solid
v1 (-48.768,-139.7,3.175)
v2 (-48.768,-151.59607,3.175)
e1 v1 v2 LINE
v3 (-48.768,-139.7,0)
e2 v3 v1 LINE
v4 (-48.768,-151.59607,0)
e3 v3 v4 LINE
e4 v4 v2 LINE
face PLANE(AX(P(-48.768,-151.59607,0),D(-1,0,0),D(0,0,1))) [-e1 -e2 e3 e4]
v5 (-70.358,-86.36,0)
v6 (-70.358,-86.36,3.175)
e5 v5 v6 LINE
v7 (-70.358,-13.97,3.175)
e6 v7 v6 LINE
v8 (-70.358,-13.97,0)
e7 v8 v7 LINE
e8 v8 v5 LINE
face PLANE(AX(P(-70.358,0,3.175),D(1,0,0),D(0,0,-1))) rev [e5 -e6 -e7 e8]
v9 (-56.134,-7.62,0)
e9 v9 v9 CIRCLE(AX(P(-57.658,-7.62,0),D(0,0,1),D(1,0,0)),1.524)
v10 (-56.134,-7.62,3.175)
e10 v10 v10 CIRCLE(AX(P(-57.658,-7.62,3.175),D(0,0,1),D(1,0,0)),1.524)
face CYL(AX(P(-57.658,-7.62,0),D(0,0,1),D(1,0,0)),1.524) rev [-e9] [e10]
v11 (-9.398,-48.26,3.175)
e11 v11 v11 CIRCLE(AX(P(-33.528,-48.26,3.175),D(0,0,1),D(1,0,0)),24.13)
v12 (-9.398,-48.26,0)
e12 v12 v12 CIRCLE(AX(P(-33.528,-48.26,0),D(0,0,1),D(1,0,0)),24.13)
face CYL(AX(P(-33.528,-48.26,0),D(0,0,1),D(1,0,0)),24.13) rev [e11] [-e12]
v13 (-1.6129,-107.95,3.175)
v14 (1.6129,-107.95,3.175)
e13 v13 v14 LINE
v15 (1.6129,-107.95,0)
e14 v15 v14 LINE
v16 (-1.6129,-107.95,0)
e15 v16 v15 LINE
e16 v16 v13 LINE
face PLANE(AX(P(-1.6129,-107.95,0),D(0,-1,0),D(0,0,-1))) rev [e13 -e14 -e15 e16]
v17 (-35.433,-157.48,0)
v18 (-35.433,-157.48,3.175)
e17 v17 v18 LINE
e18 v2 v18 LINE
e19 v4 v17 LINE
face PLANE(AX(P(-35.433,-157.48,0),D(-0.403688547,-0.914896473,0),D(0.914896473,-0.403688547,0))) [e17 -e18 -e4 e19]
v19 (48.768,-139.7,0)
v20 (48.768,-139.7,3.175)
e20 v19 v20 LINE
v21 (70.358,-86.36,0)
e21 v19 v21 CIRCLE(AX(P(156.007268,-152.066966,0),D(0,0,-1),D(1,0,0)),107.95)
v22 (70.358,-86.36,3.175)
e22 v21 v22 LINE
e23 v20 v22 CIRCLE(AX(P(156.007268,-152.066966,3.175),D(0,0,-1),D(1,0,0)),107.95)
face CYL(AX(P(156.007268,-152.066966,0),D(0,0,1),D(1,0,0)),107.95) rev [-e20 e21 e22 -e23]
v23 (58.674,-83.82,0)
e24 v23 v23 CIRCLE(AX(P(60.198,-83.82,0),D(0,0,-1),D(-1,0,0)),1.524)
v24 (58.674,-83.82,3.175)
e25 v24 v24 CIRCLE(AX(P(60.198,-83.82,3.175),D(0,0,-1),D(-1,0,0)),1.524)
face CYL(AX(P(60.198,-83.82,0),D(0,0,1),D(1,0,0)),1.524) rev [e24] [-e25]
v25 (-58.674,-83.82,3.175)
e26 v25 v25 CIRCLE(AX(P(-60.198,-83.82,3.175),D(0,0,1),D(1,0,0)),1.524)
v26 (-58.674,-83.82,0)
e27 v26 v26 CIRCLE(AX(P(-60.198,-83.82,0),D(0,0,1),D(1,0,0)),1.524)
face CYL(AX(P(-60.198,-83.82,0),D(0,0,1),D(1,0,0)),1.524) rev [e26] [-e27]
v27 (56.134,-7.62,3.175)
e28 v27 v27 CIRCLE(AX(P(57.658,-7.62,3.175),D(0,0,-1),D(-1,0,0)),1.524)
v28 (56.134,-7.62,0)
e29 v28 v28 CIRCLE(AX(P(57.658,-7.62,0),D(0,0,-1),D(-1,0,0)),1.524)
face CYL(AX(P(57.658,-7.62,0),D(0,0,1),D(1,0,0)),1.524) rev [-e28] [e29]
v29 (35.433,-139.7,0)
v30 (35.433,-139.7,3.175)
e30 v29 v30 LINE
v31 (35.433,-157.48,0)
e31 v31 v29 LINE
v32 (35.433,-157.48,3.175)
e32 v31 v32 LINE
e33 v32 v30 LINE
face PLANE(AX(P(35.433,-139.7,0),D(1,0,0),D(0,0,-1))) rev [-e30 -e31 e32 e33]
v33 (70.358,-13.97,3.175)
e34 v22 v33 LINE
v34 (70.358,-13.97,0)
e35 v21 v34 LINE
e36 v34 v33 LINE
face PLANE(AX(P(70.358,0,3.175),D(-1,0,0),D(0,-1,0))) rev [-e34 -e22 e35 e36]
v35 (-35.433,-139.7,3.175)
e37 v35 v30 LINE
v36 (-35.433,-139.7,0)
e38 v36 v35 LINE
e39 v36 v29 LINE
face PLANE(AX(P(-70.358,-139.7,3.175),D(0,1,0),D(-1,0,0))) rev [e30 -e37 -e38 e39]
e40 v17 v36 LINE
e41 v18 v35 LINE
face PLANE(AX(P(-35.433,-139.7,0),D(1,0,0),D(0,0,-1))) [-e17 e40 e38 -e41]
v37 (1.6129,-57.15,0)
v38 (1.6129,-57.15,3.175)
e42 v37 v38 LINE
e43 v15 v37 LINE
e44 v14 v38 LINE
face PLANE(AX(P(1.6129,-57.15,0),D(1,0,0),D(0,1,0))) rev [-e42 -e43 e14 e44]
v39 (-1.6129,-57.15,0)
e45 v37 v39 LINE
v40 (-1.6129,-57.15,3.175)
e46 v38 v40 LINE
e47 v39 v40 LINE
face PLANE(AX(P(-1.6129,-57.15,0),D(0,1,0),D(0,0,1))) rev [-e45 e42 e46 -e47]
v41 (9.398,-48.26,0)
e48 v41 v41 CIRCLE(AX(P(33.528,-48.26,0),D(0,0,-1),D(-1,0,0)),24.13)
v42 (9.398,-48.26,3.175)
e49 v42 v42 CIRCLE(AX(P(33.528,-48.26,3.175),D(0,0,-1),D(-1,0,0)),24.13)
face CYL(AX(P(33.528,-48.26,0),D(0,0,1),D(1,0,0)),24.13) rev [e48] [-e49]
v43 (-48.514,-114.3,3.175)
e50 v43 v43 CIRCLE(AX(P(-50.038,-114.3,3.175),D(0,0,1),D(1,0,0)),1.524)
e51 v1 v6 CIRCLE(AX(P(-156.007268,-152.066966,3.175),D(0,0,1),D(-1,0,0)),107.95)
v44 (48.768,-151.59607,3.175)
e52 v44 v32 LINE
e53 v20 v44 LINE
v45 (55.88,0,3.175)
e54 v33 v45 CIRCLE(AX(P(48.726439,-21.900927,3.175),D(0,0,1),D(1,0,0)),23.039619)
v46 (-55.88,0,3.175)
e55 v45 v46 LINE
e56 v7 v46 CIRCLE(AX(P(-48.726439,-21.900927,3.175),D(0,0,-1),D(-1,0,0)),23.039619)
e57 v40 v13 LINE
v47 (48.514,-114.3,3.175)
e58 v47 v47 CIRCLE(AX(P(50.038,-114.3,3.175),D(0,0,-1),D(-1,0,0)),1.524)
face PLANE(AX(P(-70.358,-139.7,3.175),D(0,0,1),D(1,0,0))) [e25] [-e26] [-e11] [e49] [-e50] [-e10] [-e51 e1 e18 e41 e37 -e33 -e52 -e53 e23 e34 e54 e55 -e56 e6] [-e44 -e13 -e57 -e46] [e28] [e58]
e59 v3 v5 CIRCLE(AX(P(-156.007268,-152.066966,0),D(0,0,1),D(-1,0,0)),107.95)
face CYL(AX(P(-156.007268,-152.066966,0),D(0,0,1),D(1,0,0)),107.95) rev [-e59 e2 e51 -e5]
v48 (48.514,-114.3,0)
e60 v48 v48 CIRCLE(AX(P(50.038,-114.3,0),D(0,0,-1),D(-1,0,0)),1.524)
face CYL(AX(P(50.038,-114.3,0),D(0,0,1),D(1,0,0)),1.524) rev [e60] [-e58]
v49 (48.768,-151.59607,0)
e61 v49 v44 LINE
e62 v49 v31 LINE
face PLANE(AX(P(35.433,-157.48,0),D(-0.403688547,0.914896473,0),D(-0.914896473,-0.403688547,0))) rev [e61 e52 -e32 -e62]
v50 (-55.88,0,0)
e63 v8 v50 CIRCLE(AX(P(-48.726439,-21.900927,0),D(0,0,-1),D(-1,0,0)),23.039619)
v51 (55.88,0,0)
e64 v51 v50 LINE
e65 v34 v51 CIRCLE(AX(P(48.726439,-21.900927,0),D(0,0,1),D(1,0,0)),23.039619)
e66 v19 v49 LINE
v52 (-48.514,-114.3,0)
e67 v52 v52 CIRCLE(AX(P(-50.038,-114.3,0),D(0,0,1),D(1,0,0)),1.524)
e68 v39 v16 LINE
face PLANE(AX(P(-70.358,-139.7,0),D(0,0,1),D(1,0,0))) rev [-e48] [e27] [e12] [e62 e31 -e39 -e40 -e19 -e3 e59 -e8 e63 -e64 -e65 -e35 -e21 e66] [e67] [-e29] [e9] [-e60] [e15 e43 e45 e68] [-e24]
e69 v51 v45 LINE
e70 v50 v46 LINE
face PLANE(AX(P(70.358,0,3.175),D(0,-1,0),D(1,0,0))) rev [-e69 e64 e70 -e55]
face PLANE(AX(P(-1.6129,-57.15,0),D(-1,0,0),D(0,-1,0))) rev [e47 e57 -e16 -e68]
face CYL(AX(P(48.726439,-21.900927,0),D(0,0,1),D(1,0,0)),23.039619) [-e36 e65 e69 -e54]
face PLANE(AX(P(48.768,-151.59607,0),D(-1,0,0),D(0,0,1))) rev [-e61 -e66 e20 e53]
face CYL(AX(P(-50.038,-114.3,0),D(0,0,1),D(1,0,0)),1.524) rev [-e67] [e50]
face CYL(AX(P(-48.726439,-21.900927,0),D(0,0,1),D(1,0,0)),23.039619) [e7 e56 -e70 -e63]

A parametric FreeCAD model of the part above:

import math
import FreeCAD as App
import Part
import Sketcher
from FreeCAD import Vector
Q = App.Units.Quantity

doc = App.newDocument("Part")
params = doc.addObject("Spreadsheet::Sheet", "Params")
for row, (alias, value) in enumerate([
    ("sketch1_height", "5.5 in"),
    ("sketch1_width", "5.54 in"),
    ("pad1_length", "0.125 in"),
    ("sketch2_diameter", "1.9 in"),
    ("sketch3_height", "2 in"),
    ("sketch3_width", "0.127 in"),
    ("sketch4_radius", "4.25 in"),
    ("sketch4_height", "2.1 in"),
    ("sketch4_width", "0.85 in"),
    ("sketch4_width2", "0.57 in"),
    ("sketch4_height2", "0.55 in"),
    ("sketch5_diameter", "0.12 in"),
    ("sketch6_height", "0.7 in"),
    ("sketch6_width", "0.525 in"),
    ("pad2_length", "0.125 in"),
], start=1):
    params.set(f"A{row}", alias)
    params.set(f"B{row}", "=" + value)
    params.setAlias(f"B{row}", alias)

body = doc.addObject("PartDesign::Body", "Body")

# Sketch on XY plane
sketch1 = body.newObject("Sketcher::SketchObject", "Sketch")
sketch1.AttachmentSupport = (doc.getObject("XY_Plane"), [""])
sketch1.MapMode = "FlatFace"
sketch1.addGeometry([
    Part.LineSegment(Vector(-70, 0, 0), Vector(-70, -140, 0)),
    Part.LineSegment(Vector(-70, -140, 0), Vector(70, -140, 0)),
    Part.LineSegment(Vector(70, -140, 0), Vector(70, 0, 0)),
    Part.LineSegment(Vector(70, 0, 0), Vector(-70, 0, 0)),
], False)
sketch1.addConstraint([
    Sketcher.Constraint("Coincident", 0, 2, 1, 1),
    Sketcher.Constraint("Coincident", 1, 2, 2, 1),
    Sketcher.Constraint("Coincident", 2, 2, 3, 1),
    Sketcher.Constraint("Coincident", 3, 2, 0, 1),
    Sketcher.Constraint("Vertical", 0),
    Sketcher.Constraint("Horizontal", 1),
    Sketcher.Constraint("Vertical", 2),
    Sketcher.Constraint("Horizontal", 3),
    Sketcher.Constraint("Symmetric", 2, 2, 3, 2, -1, 1),
    Sketcher.Constraint("DistanceY", 0, 2, 0, 1, Q("5.5 in")),
    Sketcher.Constraint("DistanceX", 1, 1, 1, 2, Q("5.54 in")),
])
sketch1.setExpression("Constraints[9]", "Params.sketch1_height")
sketch1.setExpression("Constraints[10]", "Params.sketch1_width")
pad1 = body.newObject("PartDesign::Pad", "Pad")
pad1.Profile = sketch1
pad1.setExpression("Length", "Params.pad1_length")

# Sketch on XY plane
sketch2 = body.newObject("Sketcher::SketchObject", "Sketch001")
sketch2.AttachmentSupport = (doc.getObject("XY_Plane"), [""])
sketch2.MapMode = "FlatFace"
sketch2.AttachmentOffset = App.Placement(Vector(0, 0, 0.125 * 25.4), App.Rotation())
sketch2.addGeometry(Part.Circle(Vector(-34, -48, 0), Vector(0, 0, 1), 24), False)
sketch2.addConstraint([
    Sketcher.Constraint("Diameter", 0, Q("1.9 in")),
    Sketcher.Constraint("DistanceY", 0, 3, -1, 1, Q("1.9 in")),
    Sketcher.Constraint("DistanceX", 0, 3, -1, 1, Q("1.32 in")),
])
sketch2.setExpression("Constraints[0]", "Params.sketch2_diameter")
pocket1 = body.newObject("PartDesign::Pocket", "Pocket")
pocket1.Profile = sketch2
pocket1.Type = "ThroughAll"

# Sketch on XY plane
sketch3 = body.newObject("Sketcher::SketchObject", "Sketch002")
sketch3.AttachmentSupport = (doc.getObject("XY_Plane"), [""])
sketch3.MapMode = "FlatFace"
sketch3.AttachmentOffset = App.Placement(Vector(0, 0, 0.125 * 25.4), App.Rotation())
sketch3.addGeometry([
    Part.LineSegment(Vector(-1.6, -57.1, 0), Vector(-1.6, -108, 0)),
    Part.LineSegment(Vector(-1.6, -108, 0), Vector(1.6, -108, 0)),
    Part.LineSegment(Vector(1.6, -108, 0), Vector(1.6, -57.1, 0)),
    Part.LineSegment(Vector(1.6, -57.1, 0), Vector(-1.6, -57.1, 0)),
], False)
sketch3.addConstraint([
    Sketcher.Constraint("Coincident", 0, 2, 1, 1),
    Sketcher.Constraint("Coincident", 1, 2, 2, 1),
    Sketcher.Constraint("Coincident", 2, 2, 3, 1),
    Sketcher.Constraint("Coincident", 3, 2, 0, 1),
    Sketcher.Constraint("Vertical", 0),
    Sketcher.Constraint("Horizontal", 1),
    Sketcher.Constraint("Vertical", 2),
    Sketcher.Constraint("Horizontal", 3),
    Sketcher.Constraint("DistanceY", 0, 2, 0, 1, Q("2 in")),
    Sketcher.Constraint("DistanceX", 1, 1, 1, 2, Q("0.127 in")),
    Sketcher.Constraint("DistanceY", 0, 2, -1, 1, Q("4.25 in")),
    Sketcher.Constraint("DistanceX", 0, 2, -1, 1, Q("0.0635 in")),
])
sketch3.setExpression("Constraints[8]", "Params.sketch3_height")
sketch3.setExpression("Constraints[9]", "Params.sketch3_width")
pocket2 = body.newObject("PartDesign::Pocket", "Pocket001")
pocket2.Profile = sketch3
pocket2.Type = "ThroughAll"
doc.recompute()

mirrored = body.newObject("PartDesign::Mirrored", "Mirrored")
mirrored.Originals = [pocket1]
mirrored.MirrorPlane = (doc.getObject("YZ_Plane"), [""])
body.Tip = mirrored

# Sketch on XY plane
sketch4 = body.newObject("Sketcher::SketchObject", "Sketch003")
sketch4.AttachmentSupport = (doc.getObject("XY_Plane"), [""])
sketch4.MapMode = "FlatFace"
sketch4.AttachmentOffset = App.Placement(Vector(0, 0, 0.125 * 25.4), App.Rotation())
sketch4.addGeometry([
    Part.LineSegment(Vector(-70, -86, 0), Vector(-70, -140, 0)),  # 0
    Part.LineSegment(Vector(-70, -140, 0), Vector(-49, -140, 0)),  # 1
    Part.ArcOfCircle(Part.Circle(Vector(-156, -152, 0), Vector(0, 0, 1), 108), math.radians(7), math.radians(37)),  # 2
    Part.LineSegment(Vector(-70, 0, 0), Vector(-70, -14, 0)),  # 3
    Part.ArcOfCircle(Part.Circle(Vector(-49, -22, 0), Vector(0, 0, 1), 23), math.radians(108), math.radians(160)),  # 4
    Part.LineSegment(Vector(-56, 0, 0), Vector(-70, 0, 0)),  # 5
], False)
sketch4.addConstraint([
    Sketcher.Constraint("Coincident", 0, 2, 1, 1),
    Sketcher.Constraint("Coincident", 1, 2, 2, 1),
    Sketcher.Constraint("Coincident", 2, 2, 0, 1),
    Sketcher.Constraint("Coincident", 3, 2, 4, 2),
    Sketcher.Constraint("Coincident", 4, 1, 5, 1),
    Sketcher.Constraint("Coincident", 5, 2, 3, 1),
    Sketcher.Constraint("Vertical", 0),
    Sketcher.Constraint("Horizontal", 1),
    Sketcher.Constraint("Vertical", 3),
    Sketcher.Constraint("Horizontal", 5),
    Sketcher.Constraint("PointOnObject", 4, 1, -1),
    Sketcher.Constraint("Vertical", 2, 2, 3, 2),
    Sketcher.Constraint("Radius", 2, Q("4.25 in")),
    Sketcher.Constraint("DistanceY", 0, 2, 0, 1, Q("2.1 in")),
    Sketcher.Constraint("DistanceX", 1, 1, 1, 2, Q("0.85 in")),
    Sketcher.Constraint("DistanceX", 5, 2, 5, 1, Q("0.57 in")),
    Sketcher.Constraint("DistanceY", 3, 2, 3, 1, Q("0.55 in")),
    Sketcher.Constraint("DistanceY", 0, 2, -1, 1, Q("5.5 in")),
    Sketcher.Constraint("DistanceX", 4, 1, -1, 1, Q("2.2 in")),
    Sketcher.Constraint("Radius", 4, Q("23.039619 mm")),
])
sketch4.setExpression("Constraints[12]", "Params.sketch4_radius")
sketch4.setExpression("Constraints[13]", "Params.sketch4_height")
sketch4.setExpression("Constraints[14]", "Params.sketch4_width")
sketch4.setExpression("Constraints[15]", "Params.sketch4_width2")
sketch4.setExpression("Constraints[16]", "Params.sketch4_height2")
pocket3 = body.newObject("PartDesign::Pocket", "Pocket002")
pocket3.Profile = sketch4
pocket3.Type = "ThroughAll"
doc.recompute()

mirrored2 = body.newObject("PartDesign::Mirrored", "Mirrored001")
mirrored2.Originals = [pocket3]
mirrored2.MirrorPlane = (doc.getObject("YZ_Plane"), [""])
body.Tip = mirrored2

# Sketch on XY plane
sketch5 = body.newObject("Sketcher::SketchObject", "Sketch004")
sketch5.AttachmentSupport = (doc.getObject("XY_Plane"), [""])
sketch5.MapMode = "FlatFace"
sketch5.AttachmentOffset = App.Placement(Vector(0, 0, 0.125 * 25.4), App.Rotation())
sketch5.addGeometry([
    Part.Circle(Vector(-57.7, -7.6, 0), Vector(0, 0, 1), 1.5),
    Part.Circle(Vector(-60.2, -83.8, 0), Vector(0, 0, 1), 1.5),
    Part.Circle(Vector(-50, -114.3, 0), Vector(0, 0, 1), 1.5),
], False)
sketch5.addConstraint([
    Sketcher.Constraint("Equal", 0, 1),
    Sketcher.Constraint("Equal", 1, 2),
    Sketcher.Constraint("Diameter", 0, Q("0.12 in")),
    Sketcher.Constraint("DistanceY", 1, 3, 0, 3, Q("3 in")),
    Sketcher.Constraint("DistanceY", 0, 3, -1, 1, Q("0.3 in")),
    Sketcher.Constraint("DistanceY", 2, 3, -1, 1, Q("4.5 in")),
    Sketcher.Constraint("DistanceX", 1, 3, 0, 3, Q("0.1 in")),
    Sketcher.Constraint("DistanceX", 1, 3, 2, 3, Q("0.4 in")),
    Sketcher.Constraint("DistanceX", 0, 3, -1, 1, Q("2.27 in")),
])
sketch5.setExpression("Constraints[2]", "Params.sketch5_diameter")
pocket4 = body.newObject("PartDesign::Pocket", "Pocket003")
pocket4.Profile = sketch5
pocket4.Type = "ThroughAll"
doc.recompute()

mirrored3 = body.newObject("PartDesign::Mirrored", "Mirrored002")
mirrored3.Originals = [pocket4]
mirrored3.MirrorPlane = (doc.getObject("YZ_Plane"), [""])
body.Tip = mirrored3

# Sketch on XY plane
sketch6 = body.newObject("Sketcher::SketchObject", "Sketch005")
sketch6.AttachmentSupport = (doc.getObject("XY_Plane"), [""])
sketch6.MapMode = "FlatFace"
sketch6.AttachmentOffset = App.Placement(Vector(0, 0, 0.125 * 25.4), App.Rotation())
sketch6.addGeometry([
    Part.LineSegment(Vector(-35, -140, 0), Vector(-49, -140, 0)),
    Part.LineSegment(Vector(-49, -140, 0), Vector(-49, -152, 0)),
    Part.LineSegment(Vector(-49, -152, 0), Vector(-35, -157, 0)),
    Part.LineSegment(Vector(-35, -157, 0), Vector(-35, -140, 0)),
], False)
sketch6.addConstraint([
    Sketcher.Constraint("Coincident", 0, 2, 1, 1),
    Sketcher.Constraint("Coincident", 1, 2, 2, 1),
    Sketcher.Constraint("Coincident", 2, 2, 3, 1),
    Sketcher.Constraint("Coincident", 3, 2, 0, 1),
    Sketcher.Constraint("Horizontal", 0),
    Sketcher.Constraint("Vertical", 1),
    Sketcher.Constraint("Vertical", 3),
    Sketcher.Constraint("DistanceY", 3, 1, 3, 2, Q("0.7 in")),
    Sketcher.Constraint("DistanceY", 0, 2, -1, 1, Q("5.5 in")),
    Sketcher.Constraint("DistanceX", 0, 2, 0, 1, Q("0.525 in")),
    Sketcher.Constraint("DistanceX", 0, 2, -1, 1, Q("1.92 in")),
    Sketcher.Constraint("DistanceY", 1, 2, 1, 1, Q("11.89607 mm")),
])
sketch6.setExpression("Constraints[7]", "Params.sketch6_height")
sketch6.setExpression("Constraints[9]", "Params.sketch6_width")
pad2 = body.newObject("PartDesign::Pad", "Pad001")
pad2.Profile = sketch6
pad2.setExpression("Length", "Params.pad2_length")
pad2.Reversed = True
doc.recompute()

mirrored4 = body.newObject("PartDesign::Mirrored", "Mirrored003")
mirrored4.Originals = [pad2]
mirrored4.MirrorPlane = (doc.getObject("YZ_Plane"), [""])
body.Tip = mirrored4

doc.recompute()
